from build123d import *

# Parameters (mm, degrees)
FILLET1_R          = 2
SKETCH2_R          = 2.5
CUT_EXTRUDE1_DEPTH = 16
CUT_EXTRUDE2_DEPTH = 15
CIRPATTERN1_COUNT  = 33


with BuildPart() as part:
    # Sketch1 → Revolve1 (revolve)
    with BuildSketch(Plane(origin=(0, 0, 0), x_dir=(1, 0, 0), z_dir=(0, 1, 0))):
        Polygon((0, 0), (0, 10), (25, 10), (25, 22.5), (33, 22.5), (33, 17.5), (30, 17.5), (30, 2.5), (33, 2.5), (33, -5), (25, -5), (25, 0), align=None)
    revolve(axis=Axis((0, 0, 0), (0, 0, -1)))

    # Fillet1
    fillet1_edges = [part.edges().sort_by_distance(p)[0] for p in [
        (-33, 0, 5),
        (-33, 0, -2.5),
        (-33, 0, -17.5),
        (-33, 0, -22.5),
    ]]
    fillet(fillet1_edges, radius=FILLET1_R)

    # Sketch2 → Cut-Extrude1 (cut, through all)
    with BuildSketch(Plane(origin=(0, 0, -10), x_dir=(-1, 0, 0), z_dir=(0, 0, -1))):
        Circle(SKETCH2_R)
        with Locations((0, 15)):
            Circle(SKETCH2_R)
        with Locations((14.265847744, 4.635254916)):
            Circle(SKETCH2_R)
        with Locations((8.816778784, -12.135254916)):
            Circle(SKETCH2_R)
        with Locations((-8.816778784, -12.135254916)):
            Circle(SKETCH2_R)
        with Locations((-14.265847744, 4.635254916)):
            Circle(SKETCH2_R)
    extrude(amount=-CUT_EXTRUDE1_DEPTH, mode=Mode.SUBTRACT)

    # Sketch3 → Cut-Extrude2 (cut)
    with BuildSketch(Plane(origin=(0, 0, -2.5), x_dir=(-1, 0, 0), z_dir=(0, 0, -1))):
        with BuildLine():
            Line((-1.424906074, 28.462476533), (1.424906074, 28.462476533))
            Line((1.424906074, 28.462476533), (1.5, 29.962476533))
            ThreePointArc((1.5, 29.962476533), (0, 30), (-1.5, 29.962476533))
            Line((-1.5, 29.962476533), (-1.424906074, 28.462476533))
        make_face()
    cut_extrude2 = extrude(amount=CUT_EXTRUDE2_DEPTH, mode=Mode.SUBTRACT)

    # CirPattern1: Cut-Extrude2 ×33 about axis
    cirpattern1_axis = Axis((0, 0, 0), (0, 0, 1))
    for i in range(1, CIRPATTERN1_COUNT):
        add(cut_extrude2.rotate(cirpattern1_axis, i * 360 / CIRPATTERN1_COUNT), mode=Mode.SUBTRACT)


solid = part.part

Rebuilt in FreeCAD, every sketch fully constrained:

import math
import FreeCAD as App
import Part
import Sketcher

V = App.Vector


def edges_at(feature, points):
    """Names of the edges that pass closest to the given points."""
    edges = feature.Shape.Edges
    near = lambda p: min(range(len(edges)), key=lambda i: edges[i].distToShape(Part.Vertex(*p))[0])
    return sorted({f"Edge{near(p) + 1}" for p in points})

doc = App.newDocument("Part")
body = doc.addObject("PartDesign::Body", "Body")

sketch1 = body.newObject("Sketcher::SketchObject", "Sketch")
sketch1.AttachmentSupport = (doc.getObject("XZ_Plane"), [""])
sketch1.MapMode = "FlatFace"
sketch1.addGeometry([
    Part.LineSegment(V(0, -10, 0), V(0, 0, 0)),
    Part.LineSegment(V(0, 0, 0), V(25, 0, 0)),
    Part.LineSegment(V(25, 0, 0), V(25, 5, 0)),
    Part.LineSegment(V(25, 5, 0), V(33, 5, 0)),
    Part.LineSegment(V(33, 5, 0), V(33, -2.5, 0)),
    Part.LineSegment(V(33, -2.5, 0), V(30, -2.5, 0)),
    Part.LineSegment(V(30, -2.5, 0), V(30, -17.5, 0)),
    Part.LineSegment(V(30, -17.5, 0), V(33, -17.5, 0)),
    Part.LineSegment(V(33, -17.5, 0), V(33, -22.5, 0)),
    Part.LineSegment(V(33, -22.5, 0), V(25, -22.5, 0)),
    Part.LineSegment(V(25, -22.5, 0), V(25, -10, 0)),
    Part.LineSegment(V(25, -10, 0), V(0, -10, 0)),
], False)
sketch1.addConstraint([
    Sketcher.Constraint("Coincident", 0, 2, 1, 1),
    Sketcher.Constraint("Coincident", 1, 2, 2, 1),
    Sketcher.Constraint("Coincident", 2, 2, 3, 1),
    Sketcher.Constraint("Coincident", 3, 2, 4, 1),
    Sketcher.Constraint("Coincident", 4, 2, 5, 1),
    Sketcher.Constraint("Coincident", 5, 2, 6, 1),
    Sketcher.Constraint("Coincident", 6, 2, 7, 1),
    Sketcher.Constraint("Coincident", 7, 2, 8, 1),
    Sketcher.Constraint("Coincident", 8, 2, 9, 1),
    Sketcher.Constraint("Coincident", 9, 2, 10, 1),
    Sketcher.Constraint("Coincident", 10, 2, 11, 1),
    Sketcher.Constraint("Coincident", 11, 2, 0, 1),
    Sketcher.Constraint("Vertical", 0),
    Sketcher.Constraint("Horizontal", 1),
    Sketcher.Constraint("Vertical", 2),
    Sketcher.Constraint("Horizontal", 3),
    Sketcher.Constraint("Vertical", 4),
    Sketcher.Constraint("Horizontal", 5),
    Sketcher.Constraint("Vertical", 6),
    Sketcher.Constraint("Horizontal", 7),
    Sketcher.Constraint("Vertical", 8),
    Sketcher.Constraint("Horizontal", 9),
    Sketcher.Constraint("Vertical", 10),
    Sketcher.Constraint("Horizontal", 11),
    Sketcher.Constraint("Coincident", 0, 2, -1, 1),
    Sketcher.Constraint("Vertical", 4, 2, 7, 2),
    Sketcher.Constraint("Vertical", 2, 2, 9, 2),
    Sketcher.Constraint("Equal", 2, 8),
    Sketcher.Constraint("DistanceX", 1, 1, 1, 2, 25.0),
    Sketcher.Constraint("DistanceX", 3, 1, 3, 2, 8.0),
    Sketcher.Constraint("DistanceX", 5, 2, 5, 1, 3.0),
    Sketcher.Constraint("DistanceY", 0, 1, 0, 2, 10.0),
    Sketcher.Constraint("DistanceY", 2, 1, 2, 2, 5.0),
    Sketcher.Constraint("DistanceY", 6, 2, 6, 1, 15.0),
    Sketcher.Constraint("DistanceY", 4, 2, 4, 1, 7.5),
])
revolution = body.newObject("PartDesign::Revolution", "Revolution")
revolution.Profile = sketch1
revolution.ReferenceAxis = (sketch1, ["V_Axis"])
revolution.Angle = 360
doc.recompute()

fillet = body.newObject("PartDesign::Fillet", "Fillet")
fillet.Base = (revolution, edges_at(revolution, [
    (-33, 0, 5),
    (-33, 0, -2.5),
    (-33, 0, -17.5),
    (-33, 0, -22.5),
]))
fillet.Radius = 2

sketch2 = body.newObject("Sketcher::SketchObject", "Sketch001")
sketch2.AttachmentSupport = (doc.getObject("XY_Plane"), [""])
sketch2.MapMode = "FlatFace"
sketch2.AttachmentOffset = App.Placement(V(0, 0, -10), App.Rotation())
sketch2.addGeometry([
    Part.Circle(V(0, 0, 0), V(0, 0, 1), 2.5),
    Part.Circle(V(0, 15, 0), V(0, 0, 1), 2.5),
    Part.Circle(V(-14.3, 4.6, 0), V(0, 0, 1), 2.5),
    Part.Circle(V(-8.8, -12.1, 0), V(0, 0, 1), 2.5),
    Part.Circle(V(8.8, -12.1, 0), V(0, 0, 1), 2.5),
    Part.Circle(V(14.3, 4.6, 0), V(0, 0, 1), 2.5),
], False)
sketch2.addConstraint([
    Sketcher.Constraint("Coincident", 0, 3, -1, 1),
    Sketcher.Constraint("Equal", 0, 1),
    Sketcher.Constraint("Equal", 1, 2),
    Sketcher.Constraint("Equal", 2, 3),
    Sketcher.Constraint("Equal", 3, 4),
    Sketcher.Constraint("Equal", 4, 5),
    Sketcher.Constraint("Symmetric", 3, 3, 4, 3, -2),
    Sketcher.Constraint("Symmetric", 2, 3, 5, 3, -2),
    Sketcher.Constraint("PointOnObject", 1, 3, -2),
    Sketcher.Constraint("Diameter", 0, 5.0),
    Sketcher.Constraint("DistanceY", -1, 1, 1, 3, 15.0),
    Sketcher.Constraint("DistanceX", 3, 3, -1, 1, 8.816779),
    Sketcher.Constraint("DistanceX", 2, 3, 3, 3, 5.449069),
    Sketcher.Constraint("DistanceY", 3, 3, 2, 3, 16.77051),
    Sketcher.Constraint("DistanceY", -1, 1, 2, 3, 4.635255),
])
pocket1 = body.newObject("PartDesign::Pocket", "Pocket")
pocket1.Profile = sketch2
pocket1.Type = "ThroughAll"
pocket1.Reversed = True

sketch3 = body.newObject("Sketcher::SketchObject", "Sketch002")
sketch3.AttachmentSupport = (doc.getObject("XY_Plane"), [""])
sketch3.MapMode = "FlatFace"
sketch3.AttachmentOffset = App.Placement(V(0, 0, -2.5), App.Rotation())
sketch3.addGeometry([
    Part.LineSegment(V(1.4, 28.5, 0), V(-1.4, 28.5, 0)),
    Part.LineSegment(V(-1.4, 28.5, 0), V(-1.5, 30, 0)),
    Part.ArcOfCircle(Part.Circle(V(0, 0, 0), V(0, 0, 1), 30), math.radians(87.13), math.radians(92.87)),
    Part.LineSegment(V(1.5, 30, 0), V(1.4, 28.5, 0)),
], False)
sketch3.addConstraint([
    Sketcher.Constraint("Coincident", 0, 2, 1, 1),
    Sketcher.Constraint("Coincident", 1, 2, 2, 2),
    Sketcher.Constraint("Coincident", 2, 1, 3, 1),
    Sketcher.Constraint("Coincident", 3, 2, 0, 1),
    Sketcher.Constraint("Horizontal", 0),
    Sketcher.Constraint("Coincident", 2, 3, -1, 1),
    Sketcher.Constraint("Horizontal", 1, 2, 2, 1),
    Sketcher.Constraint("Equal", 1, 3),
    Sketcher.Constraint("Radius", 2, 30.0),
    Sketcher.Constraint("DistanceX", 1, 2, 2, 1, 3.0),
    Sketcher.Constraint("DistanceY", 0, 2, 1, 2, 1.5),
    Sketcher.Constraint("Distance", 1, 1.501879),
])
pocket2 = body.newObject("PartDesign::Pocket", "Pocket001")
pocket2.Profile = sketch3
pocket2.Length = 15
doc.recompute()

polarpattern = body.newObject("PartDesign::PolarPattern", "PolarPattern")
polarpattern.Originals = [pocket2]
polarpattern.Axis = (doc.getObject("Z_Axis"), [""])
polarpattern.Angle = 360
polarpattern.Occurrences = 33
body.Tip = polarpattern

doc.recompute()
